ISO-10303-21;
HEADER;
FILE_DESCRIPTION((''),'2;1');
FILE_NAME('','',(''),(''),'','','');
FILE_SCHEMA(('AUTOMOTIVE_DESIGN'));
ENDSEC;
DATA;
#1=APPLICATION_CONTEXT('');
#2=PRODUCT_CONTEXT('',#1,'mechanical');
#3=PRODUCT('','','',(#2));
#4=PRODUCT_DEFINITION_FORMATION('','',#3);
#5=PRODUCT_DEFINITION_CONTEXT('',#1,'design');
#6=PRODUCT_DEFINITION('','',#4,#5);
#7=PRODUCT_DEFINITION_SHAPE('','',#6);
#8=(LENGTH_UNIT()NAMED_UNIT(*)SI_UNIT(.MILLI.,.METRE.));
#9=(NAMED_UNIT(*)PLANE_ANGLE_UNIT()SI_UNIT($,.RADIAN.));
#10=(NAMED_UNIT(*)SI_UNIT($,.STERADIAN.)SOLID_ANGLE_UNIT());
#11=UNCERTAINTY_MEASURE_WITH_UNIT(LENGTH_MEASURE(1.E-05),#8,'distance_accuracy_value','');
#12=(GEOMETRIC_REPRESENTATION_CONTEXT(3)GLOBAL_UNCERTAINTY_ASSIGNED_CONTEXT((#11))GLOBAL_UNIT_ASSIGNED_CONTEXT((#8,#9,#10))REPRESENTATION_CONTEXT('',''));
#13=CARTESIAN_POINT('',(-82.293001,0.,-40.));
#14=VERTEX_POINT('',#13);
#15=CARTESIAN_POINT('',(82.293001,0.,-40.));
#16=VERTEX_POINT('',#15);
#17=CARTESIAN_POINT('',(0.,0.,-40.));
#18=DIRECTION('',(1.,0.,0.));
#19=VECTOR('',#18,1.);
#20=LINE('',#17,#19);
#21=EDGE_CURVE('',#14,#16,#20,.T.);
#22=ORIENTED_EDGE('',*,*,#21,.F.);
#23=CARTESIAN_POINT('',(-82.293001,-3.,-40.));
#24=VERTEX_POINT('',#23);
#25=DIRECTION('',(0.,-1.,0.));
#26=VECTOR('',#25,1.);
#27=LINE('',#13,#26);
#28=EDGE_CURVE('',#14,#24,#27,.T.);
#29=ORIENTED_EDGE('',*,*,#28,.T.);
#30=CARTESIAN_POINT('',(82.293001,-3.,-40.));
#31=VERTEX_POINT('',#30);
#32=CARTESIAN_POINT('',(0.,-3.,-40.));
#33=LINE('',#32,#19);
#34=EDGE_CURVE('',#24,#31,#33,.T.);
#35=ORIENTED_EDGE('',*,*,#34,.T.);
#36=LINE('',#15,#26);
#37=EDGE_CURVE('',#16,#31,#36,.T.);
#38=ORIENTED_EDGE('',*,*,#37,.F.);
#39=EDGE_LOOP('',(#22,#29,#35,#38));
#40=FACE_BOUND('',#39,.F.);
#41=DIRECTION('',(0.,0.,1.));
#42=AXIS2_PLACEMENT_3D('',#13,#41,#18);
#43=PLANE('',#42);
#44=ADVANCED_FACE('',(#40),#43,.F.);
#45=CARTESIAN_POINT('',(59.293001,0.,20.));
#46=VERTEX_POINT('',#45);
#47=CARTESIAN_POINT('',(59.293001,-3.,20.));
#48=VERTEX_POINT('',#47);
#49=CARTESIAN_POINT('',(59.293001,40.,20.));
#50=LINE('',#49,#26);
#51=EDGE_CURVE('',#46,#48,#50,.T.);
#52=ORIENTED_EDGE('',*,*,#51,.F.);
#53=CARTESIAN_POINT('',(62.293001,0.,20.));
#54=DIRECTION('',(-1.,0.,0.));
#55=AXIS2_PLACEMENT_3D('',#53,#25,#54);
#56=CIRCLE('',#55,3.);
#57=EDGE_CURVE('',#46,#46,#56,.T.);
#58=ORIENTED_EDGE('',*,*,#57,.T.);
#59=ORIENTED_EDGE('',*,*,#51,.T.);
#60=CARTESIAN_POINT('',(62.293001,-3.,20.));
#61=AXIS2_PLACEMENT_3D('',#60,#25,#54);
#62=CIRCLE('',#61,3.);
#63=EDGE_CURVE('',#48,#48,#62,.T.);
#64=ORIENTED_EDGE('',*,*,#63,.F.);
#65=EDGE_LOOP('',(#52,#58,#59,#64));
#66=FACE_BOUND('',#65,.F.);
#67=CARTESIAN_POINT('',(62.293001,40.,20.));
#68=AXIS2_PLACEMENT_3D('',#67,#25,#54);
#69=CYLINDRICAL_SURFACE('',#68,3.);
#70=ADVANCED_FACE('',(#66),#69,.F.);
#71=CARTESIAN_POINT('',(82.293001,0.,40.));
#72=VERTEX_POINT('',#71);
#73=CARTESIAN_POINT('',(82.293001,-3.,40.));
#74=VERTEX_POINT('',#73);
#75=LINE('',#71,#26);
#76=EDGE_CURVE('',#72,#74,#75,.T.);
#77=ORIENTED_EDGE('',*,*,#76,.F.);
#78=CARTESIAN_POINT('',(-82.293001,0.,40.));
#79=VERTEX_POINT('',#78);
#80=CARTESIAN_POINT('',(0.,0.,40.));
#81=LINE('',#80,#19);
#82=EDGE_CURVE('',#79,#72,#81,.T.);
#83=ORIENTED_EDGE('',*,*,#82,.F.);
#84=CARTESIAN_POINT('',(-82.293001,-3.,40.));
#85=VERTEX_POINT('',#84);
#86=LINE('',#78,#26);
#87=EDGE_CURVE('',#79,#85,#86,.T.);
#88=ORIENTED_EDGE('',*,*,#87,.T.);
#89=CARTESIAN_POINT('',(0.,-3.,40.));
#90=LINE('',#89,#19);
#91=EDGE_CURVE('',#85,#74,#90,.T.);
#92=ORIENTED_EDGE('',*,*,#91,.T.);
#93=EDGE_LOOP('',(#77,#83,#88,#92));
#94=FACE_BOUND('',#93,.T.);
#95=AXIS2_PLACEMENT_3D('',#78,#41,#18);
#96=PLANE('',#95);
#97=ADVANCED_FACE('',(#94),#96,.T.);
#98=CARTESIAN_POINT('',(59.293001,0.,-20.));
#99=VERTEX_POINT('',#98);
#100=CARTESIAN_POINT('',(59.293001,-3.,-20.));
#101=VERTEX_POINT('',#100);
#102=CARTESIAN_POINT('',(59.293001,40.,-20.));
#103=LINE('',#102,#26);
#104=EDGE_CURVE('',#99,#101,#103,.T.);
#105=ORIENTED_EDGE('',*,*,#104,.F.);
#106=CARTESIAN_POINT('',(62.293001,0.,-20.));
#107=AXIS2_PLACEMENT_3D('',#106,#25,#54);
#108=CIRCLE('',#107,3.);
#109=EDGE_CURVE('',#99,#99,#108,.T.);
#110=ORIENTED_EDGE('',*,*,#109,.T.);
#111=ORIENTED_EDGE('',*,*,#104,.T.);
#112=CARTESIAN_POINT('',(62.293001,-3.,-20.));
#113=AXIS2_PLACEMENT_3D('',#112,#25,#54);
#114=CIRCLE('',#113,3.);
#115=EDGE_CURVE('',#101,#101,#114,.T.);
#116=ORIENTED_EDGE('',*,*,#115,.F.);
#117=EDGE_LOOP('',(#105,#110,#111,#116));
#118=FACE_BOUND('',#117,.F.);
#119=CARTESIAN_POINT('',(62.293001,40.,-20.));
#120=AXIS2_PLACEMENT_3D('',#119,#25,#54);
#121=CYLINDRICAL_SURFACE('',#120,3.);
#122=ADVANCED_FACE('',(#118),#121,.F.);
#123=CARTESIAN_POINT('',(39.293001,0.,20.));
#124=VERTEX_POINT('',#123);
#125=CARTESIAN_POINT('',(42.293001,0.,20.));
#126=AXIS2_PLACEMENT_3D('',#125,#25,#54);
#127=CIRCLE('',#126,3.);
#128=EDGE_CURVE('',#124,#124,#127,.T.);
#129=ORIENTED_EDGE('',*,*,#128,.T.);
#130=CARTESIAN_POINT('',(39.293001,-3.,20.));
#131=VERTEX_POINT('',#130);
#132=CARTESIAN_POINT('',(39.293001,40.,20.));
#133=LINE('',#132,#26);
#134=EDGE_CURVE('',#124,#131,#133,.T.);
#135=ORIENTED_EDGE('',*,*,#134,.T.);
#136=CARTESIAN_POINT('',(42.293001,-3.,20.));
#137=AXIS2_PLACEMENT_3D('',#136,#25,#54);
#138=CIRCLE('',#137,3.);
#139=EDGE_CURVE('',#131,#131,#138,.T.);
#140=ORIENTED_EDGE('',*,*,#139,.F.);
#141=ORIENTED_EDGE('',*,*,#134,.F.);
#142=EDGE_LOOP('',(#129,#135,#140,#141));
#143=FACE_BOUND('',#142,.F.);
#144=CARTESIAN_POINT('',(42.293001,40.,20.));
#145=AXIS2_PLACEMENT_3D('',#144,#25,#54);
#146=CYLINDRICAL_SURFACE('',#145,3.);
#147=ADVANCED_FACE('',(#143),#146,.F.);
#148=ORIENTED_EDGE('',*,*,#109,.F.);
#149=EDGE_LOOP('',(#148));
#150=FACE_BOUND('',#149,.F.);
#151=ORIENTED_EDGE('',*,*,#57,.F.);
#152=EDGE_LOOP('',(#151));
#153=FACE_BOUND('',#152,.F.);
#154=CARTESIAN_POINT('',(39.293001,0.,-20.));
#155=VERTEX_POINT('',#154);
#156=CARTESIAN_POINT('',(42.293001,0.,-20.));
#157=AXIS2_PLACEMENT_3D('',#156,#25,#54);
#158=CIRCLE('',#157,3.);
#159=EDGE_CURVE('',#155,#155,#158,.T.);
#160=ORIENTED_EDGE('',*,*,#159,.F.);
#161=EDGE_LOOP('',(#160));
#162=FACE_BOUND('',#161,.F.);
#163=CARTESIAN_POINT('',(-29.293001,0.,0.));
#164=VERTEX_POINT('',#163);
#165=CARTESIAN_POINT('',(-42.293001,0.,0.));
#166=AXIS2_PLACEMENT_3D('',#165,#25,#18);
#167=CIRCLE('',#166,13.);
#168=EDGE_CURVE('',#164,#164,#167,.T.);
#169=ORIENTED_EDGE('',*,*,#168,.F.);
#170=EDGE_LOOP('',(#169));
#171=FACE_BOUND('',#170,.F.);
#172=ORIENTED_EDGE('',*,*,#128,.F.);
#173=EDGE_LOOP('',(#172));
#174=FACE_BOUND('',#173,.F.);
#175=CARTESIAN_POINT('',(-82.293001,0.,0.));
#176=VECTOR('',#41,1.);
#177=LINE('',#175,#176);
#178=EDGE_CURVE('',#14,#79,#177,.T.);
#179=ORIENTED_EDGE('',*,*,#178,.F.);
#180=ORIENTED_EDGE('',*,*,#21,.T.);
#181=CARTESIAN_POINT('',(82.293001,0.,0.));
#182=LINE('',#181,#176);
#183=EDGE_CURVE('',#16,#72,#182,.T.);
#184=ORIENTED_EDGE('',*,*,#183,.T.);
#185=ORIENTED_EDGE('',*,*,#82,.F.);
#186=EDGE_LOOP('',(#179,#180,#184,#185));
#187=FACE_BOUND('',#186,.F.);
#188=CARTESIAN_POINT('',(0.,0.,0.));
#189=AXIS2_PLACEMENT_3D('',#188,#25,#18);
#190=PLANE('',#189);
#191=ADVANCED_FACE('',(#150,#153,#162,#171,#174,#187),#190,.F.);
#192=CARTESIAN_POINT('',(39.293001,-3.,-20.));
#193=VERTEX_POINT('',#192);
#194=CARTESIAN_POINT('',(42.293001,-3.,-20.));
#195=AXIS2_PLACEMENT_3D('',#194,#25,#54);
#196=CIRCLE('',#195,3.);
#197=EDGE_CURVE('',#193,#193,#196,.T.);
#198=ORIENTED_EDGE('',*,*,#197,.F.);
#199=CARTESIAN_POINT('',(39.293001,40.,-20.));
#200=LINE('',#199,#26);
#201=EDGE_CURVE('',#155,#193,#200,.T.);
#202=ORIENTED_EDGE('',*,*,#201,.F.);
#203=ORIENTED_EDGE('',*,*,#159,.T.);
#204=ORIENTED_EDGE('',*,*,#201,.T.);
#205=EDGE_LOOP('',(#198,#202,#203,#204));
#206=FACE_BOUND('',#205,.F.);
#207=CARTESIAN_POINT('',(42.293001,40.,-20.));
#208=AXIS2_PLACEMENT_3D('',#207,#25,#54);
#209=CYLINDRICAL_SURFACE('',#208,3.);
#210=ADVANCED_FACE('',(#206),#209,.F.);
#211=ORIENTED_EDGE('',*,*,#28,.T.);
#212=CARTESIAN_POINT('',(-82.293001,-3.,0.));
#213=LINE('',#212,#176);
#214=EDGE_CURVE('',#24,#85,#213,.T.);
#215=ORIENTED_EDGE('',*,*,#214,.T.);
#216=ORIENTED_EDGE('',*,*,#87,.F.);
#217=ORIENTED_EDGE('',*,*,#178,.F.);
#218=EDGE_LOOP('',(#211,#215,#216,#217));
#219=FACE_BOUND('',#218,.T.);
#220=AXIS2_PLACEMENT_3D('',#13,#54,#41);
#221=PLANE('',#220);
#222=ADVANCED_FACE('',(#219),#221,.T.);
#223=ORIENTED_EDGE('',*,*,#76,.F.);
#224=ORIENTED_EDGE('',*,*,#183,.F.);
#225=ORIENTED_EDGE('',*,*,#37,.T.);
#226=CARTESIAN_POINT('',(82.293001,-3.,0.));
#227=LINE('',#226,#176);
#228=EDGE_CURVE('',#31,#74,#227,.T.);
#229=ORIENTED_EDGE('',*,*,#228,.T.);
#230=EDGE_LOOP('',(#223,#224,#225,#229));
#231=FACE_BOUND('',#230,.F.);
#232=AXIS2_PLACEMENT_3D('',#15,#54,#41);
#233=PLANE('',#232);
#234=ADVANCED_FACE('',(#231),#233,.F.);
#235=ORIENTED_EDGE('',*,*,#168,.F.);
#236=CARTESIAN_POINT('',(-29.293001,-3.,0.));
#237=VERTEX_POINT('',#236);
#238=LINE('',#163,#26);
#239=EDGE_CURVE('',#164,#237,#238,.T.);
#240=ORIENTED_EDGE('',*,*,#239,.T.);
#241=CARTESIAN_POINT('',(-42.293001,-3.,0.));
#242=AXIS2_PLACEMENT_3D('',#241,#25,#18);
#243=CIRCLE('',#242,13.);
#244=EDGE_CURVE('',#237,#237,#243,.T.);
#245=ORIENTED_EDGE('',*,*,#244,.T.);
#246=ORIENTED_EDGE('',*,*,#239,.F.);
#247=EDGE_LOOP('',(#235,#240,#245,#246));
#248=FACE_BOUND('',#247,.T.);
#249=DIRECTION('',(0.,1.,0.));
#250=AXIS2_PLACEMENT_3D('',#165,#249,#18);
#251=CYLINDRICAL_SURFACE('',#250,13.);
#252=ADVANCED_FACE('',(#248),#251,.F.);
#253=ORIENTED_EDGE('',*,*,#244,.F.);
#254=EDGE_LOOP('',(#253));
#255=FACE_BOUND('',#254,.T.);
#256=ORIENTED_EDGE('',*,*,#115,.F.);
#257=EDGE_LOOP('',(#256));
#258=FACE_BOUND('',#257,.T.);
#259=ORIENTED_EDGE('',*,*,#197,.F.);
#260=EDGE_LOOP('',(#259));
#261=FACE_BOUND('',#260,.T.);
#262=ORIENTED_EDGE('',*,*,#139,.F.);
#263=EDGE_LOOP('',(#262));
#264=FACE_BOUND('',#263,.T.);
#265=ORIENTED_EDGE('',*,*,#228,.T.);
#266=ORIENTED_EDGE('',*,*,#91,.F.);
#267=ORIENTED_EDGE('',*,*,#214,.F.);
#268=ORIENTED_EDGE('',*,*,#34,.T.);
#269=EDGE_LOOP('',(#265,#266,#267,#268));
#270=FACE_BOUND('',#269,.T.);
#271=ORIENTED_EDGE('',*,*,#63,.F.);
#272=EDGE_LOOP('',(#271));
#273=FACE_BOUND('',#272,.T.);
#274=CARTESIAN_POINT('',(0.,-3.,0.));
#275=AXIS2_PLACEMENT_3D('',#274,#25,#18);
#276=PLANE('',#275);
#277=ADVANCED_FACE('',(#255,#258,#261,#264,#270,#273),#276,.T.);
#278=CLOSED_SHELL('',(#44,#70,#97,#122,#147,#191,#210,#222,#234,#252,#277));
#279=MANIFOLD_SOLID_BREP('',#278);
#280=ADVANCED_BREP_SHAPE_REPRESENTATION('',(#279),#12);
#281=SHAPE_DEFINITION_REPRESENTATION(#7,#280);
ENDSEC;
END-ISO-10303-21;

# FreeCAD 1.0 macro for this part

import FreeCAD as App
import Part
import Sketcher
from FreeCAD import Vector
Q = App.Units.Quantity

doc = App.newDocument("Part")
params = doc.addObject("Spreadsheet::Sheet", "Params")
for row, (alias, value) in enumerate([
    ("sketch1_diameter", "26 mm"),
    ("sketch1_height", "80 mm"),
    ("pad1_length", "3 mm"),
    ("sketch2_diameter", "6 mm"),
    ("hole_diameter", "6 mm"),
    ("hole_depth", "40 mm"),
], start=1):
    params.set(f"A{row}", alias)
    params.set(f"B{row}", "=" + value)
    params.setAlias(f"B{row}", alias)

body = doc.addObject("PartDesign::Body", "Body")

sketch1 = body.newObject("Sketcher::SketchObject", "Sketch")
sketch1.AttachmentSupport = (doc.getObject("XZ_Plane"), [""])
sketch1.MapMode = "FlatFace"
sketch1.addGeometry([
    Part.LineSegment(Vector(-82, 40, 0), Vector(-82, -40, 0)),
    Part.LineSegment(Vector(-82, -40, 0), Vector(82, -40, 0)),
    Part.LineSegment(Vector(82, -40, 0), Vector(82, 40, 0)),
    Part.LineSegment(Vector(82, 40, 0), Vector(-82, 40, 0)),
    Part.Circle(Vector(-42, 0, 0), Vector(0, 0, 1), 13),
], False)
sketch1.addConstraint([
    Sketcher.Constraint("Coincident", 0, 2, 1, 1),
    Sketcher.Constraint("Coincident", 1, 2, 2, 1),
    Sketcher.Constraint("Coincident", 2, 2, 3, 1),
    Sketcher.Constraint("Coincident", 3, 2, 0, 1),
    Sketcher.Constraint("Vertical", 0),
    Sketcher.Constraint("Horizontal", 1),
    Sketcher.Constraint("Vertical", 2),
    Sketcher.Constraint("Horizontal", 3),
    Sketcher.Constraint("Symmetric", 0, 2, 2, 2, -1, 1),
    Sketcher.Constraint("PointOnObject", 4, 3, -1),
    Sketcher.Constraint("Diameter", 4, Q("26 mm")),
    Sketcher.Constraint("DistanceY", 0, 2, 0, 1, Q("80 mm")),
    Sketcher.Constraint("DistanceX", 0, 2, 4, 3, Q("40 mm")),
    Sketcher.Constraint("DistanceX", 1, 1, 1, 2, Q("164.586002 mm")),
])
sketch1.setExpression("Constraints[10]", "Params.sketch1_diameter")
sketch1.setExpression("Constraints[11]", "Params.sketch1_height")
pad1 = body.newObject("PartDesign::Pad", "Pad")
pad1.Profile = sketch1
pad1.setExpression("Length", "Params.pad1_length")

sketch2 = body.newObject("Sketcher::SketchObject", "Sketch001")
sketch2.AttachmentSupport = (doc.getObject("XZ_Plane"), [""])
sketch2.MapMode = "FlatFace"
sketch2.addGeometry([
    Part.Circle(Vector(42.3, -20, 0), Vector(0, 0, 1), 3),
    Part.Circle(Vector(62.3, -20, 0), Vector(0, 0, 1), 3),
    Part.Circle(Vector(62.3, 20, 0), Vector(0, 0, 1), 3),
    Part.Circle(Vector(42.3, 20, 0), Vector(0, 0, 1), 3),
], False)
sketch2.addConstraint([
    Sketcher.Constraint("Equal", 0, 1),
    Sketcher.Constraint("Equal", 1, 2),
    Sketcher.Constraint("Equal", 2, 3),
    Sketcher.Constraint("Symmetric", 1, 3, 2, 3, -1),
    Sketcher.Constraint("Symmetric", 0, 3, 3, 3, -1),
    Sketcher.Constraint("Horizontal", 0, 3, 1, 3),
    Sketcher.Constraint("Diameter", 0, Q("6 mm")),
    Sketcher.Constraint("DistanceY", 0, 3, -1, 1, Q("20 mm")),
    Sketcher.Constraint("DistanceX", 0, 3, 1, 3, Q("20 mm")),
    Sketcher.Constraint("DistanceX", -1, 1, 0, 3, Q("42.293001 mm")),
])
sketch2.setExpression("Constraints[6]", "Params.sketch2_diameter")
doc.recompute()
hole = body.newObject("PartDesign::Hole", "Hole")
hole.Profile = sketch2
hole.ThreadType = "None"
hole.setExpression("Diameter", "Params.hole_diameter")
hole.DepthType = "Dimension"
hole.setExpression("Depth", "Params.hole_depth")
hole.DrillPoint = "Flat"
hole.Reversed = True

doc.recompute()
